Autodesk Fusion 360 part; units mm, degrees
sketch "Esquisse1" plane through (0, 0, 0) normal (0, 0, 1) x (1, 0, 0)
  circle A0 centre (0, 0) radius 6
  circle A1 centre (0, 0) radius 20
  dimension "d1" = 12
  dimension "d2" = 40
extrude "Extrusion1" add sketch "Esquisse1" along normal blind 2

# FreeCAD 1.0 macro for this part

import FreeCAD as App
import Part
import Sketcher
Q = App.Units.Quantity

doc = App.newDocument("Part")
body = doc.addObject("PartDesign::Body", "Body")

sketch1 = body.newObject("Sketcher::SketchObject", "Sketch")
sketch1.AttachmentSupport = (doc.getObject("XY_Plane"), [""])
sketch1.MapMode = "FlatFace"
sketch1.addGeometry(Part.Circle(App.Vector(0, 0, 0), App.Vector(0, 0, 1), 20), False)
sketch1.addGeometry(Part.Circle(App.Vector(0, 0, 0), App.Vector(0, 0, 1), 6), False)
sketch1.addConstraint(Sketcher.Constraint("Coincident", 0, 3, -1, 1))
sketch1.addConstraint(Sketcher.Constraint("Coincident", 1, 3, -1, 1))
sketch1.addConstraint(Sketcher.Constraint("Diameter", 0, Q("40 mm")))
sketch1.addConstraint(Sketcher.Constraint("Diameter", 1, Q("12 mm")))
pad1 = body.newObject("PartDesign::Pad", "Pad")
pad1.Profile = sketch1
pad1.Length = 2

doc.recompute()
